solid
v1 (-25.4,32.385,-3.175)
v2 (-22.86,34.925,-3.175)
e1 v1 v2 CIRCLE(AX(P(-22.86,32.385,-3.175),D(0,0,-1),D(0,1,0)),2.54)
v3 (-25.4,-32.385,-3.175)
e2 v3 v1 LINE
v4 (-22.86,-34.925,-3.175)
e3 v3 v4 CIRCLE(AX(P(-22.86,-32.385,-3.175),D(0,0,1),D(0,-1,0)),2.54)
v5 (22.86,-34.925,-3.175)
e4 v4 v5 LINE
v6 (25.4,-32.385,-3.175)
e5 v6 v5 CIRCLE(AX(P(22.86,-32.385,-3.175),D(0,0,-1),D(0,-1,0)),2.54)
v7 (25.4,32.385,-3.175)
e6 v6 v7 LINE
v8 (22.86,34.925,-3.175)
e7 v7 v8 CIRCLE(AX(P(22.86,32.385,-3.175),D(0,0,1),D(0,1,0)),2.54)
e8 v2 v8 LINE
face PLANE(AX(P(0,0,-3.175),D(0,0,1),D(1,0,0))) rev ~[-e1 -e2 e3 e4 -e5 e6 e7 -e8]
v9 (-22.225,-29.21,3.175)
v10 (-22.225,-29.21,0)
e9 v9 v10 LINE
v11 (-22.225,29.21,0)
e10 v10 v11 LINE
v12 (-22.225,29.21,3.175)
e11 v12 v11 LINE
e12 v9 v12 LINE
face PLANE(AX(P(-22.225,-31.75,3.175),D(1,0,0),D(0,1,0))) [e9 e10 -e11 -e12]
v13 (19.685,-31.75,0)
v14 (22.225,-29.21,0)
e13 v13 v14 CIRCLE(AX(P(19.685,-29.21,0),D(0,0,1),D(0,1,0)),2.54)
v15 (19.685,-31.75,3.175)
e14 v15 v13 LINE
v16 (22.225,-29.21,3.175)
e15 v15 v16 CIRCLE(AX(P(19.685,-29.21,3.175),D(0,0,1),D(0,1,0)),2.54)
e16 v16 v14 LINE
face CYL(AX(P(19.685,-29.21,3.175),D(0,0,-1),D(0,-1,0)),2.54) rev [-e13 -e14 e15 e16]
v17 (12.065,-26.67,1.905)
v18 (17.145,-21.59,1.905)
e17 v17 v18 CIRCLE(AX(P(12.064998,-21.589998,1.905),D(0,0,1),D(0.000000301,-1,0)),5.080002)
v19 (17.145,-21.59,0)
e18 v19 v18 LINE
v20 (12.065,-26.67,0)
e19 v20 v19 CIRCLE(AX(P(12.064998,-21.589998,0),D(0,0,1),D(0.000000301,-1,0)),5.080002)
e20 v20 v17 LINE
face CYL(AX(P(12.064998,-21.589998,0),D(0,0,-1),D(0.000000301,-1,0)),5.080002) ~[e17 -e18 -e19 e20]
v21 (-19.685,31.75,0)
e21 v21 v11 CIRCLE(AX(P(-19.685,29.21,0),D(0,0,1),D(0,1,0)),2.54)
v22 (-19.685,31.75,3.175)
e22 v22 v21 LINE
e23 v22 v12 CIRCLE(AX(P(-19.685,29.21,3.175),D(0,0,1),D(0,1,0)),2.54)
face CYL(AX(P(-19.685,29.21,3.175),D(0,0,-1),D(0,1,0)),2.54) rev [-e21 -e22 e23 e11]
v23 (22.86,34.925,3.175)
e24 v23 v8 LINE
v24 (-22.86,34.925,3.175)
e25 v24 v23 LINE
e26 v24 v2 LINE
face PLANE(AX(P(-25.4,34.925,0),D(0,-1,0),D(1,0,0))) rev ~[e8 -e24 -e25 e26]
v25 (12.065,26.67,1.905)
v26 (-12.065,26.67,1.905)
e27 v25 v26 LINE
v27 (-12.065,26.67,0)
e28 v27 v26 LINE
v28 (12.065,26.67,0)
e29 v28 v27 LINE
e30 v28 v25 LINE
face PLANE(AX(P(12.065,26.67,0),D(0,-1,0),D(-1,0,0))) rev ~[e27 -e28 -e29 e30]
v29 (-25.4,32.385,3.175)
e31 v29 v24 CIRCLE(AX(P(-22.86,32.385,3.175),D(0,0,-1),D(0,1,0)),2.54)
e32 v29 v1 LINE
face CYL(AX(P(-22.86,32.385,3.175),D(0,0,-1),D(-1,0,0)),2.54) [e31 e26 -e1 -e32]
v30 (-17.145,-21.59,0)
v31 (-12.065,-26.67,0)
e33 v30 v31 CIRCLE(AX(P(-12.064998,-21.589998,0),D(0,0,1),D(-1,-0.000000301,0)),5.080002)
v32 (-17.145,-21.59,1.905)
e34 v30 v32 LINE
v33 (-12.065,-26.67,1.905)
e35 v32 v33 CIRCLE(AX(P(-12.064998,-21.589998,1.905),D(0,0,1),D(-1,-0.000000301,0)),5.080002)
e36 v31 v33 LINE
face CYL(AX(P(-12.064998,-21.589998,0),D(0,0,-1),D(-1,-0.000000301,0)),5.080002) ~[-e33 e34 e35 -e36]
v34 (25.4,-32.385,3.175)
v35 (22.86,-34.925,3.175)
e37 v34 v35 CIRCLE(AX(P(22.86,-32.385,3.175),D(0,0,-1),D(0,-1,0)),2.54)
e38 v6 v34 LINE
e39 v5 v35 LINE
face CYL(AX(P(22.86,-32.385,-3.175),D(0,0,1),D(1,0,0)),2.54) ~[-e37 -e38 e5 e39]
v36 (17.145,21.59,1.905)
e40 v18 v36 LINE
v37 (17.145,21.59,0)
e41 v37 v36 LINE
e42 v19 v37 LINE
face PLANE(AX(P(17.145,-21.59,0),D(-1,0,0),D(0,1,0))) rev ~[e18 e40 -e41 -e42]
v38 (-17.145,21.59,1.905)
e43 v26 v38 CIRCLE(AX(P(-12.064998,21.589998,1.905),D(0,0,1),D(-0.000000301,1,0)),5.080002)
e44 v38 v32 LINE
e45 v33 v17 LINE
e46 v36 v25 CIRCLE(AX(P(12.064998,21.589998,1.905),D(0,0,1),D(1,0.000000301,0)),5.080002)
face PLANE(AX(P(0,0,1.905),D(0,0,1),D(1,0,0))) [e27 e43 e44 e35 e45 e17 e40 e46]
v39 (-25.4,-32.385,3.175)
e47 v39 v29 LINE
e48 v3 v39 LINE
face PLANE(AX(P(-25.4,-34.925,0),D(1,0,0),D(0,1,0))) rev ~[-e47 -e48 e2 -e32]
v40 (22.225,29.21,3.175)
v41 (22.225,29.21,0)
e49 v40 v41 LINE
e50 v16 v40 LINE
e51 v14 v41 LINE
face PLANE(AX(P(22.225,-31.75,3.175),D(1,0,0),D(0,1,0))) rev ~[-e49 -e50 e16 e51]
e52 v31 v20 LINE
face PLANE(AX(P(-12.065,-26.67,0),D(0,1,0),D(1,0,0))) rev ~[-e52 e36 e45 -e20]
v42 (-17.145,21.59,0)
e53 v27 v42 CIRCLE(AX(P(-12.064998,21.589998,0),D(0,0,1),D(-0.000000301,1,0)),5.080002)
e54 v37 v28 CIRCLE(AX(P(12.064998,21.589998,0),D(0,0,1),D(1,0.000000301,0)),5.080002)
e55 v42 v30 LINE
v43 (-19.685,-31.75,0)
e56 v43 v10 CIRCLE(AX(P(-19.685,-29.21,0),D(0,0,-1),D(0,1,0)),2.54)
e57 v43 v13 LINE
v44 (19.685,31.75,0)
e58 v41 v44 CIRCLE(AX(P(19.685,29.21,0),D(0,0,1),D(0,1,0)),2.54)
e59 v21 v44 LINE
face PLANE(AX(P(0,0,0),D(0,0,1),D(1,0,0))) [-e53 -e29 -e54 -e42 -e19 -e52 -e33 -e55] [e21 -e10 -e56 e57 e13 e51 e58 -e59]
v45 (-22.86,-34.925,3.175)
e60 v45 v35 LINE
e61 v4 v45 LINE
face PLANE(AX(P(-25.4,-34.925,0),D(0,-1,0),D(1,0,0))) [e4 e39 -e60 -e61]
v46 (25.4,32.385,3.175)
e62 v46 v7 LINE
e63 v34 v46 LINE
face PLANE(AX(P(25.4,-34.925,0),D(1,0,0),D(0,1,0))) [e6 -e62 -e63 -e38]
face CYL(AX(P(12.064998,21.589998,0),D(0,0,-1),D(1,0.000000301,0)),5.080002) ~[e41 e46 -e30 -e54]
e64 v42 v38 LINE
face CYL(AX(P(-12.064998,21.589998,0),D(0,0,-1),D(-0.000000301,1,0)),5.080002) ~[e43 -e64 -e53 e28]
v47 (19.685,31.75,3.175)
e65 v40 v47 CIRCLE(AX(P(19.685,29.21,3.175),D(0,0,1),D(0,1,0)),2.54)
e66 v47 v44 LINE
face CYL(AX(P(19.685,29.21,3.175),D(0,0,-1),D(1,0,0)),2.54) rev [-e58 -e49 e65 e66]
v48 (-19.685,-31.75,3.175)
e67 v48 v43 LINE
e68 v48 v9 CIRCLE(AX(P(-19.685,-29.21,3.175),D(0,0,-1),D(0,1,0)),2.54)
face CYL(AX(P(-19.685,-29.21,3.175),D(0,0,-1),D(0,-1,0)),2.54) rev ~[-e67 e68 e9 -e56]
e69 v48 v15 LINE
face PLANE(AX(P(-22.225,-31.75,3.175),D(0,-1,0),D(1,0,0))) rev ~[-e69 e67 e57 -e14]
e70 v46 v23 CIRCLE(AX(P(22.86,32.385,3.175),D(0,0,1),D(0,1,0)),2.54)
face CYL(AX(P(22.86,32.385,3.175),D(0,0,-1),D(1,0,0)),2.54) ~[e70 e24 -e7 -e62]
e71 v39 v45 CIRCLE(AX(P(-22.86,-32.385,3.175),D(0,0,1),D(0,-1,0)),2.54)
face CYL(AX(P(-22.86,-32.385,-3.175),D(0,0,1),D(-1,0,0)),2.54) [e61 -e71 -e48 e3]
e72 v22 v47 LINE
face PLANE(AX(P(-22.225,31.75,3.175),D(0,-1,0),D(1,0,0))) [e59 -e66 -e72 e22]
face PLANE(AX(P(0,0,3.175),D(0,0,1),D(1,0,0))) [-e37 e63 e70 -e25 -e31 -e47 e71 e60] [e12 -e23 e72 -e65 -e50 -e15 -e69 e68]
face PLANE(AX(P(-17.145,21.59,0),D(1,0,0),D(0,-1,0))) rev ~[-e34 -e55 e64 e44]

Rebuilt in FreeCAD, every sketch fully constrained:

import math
import FreeCAD as App
import Part
import Sketcher

V = App.Vector
Q = App.Units.Quantity


def edges_at(feature, points):
    """Names of the edges that pass closest to the given points."""
    edges = feature.Shape.Edges
    near = lambda p: min(range(len(edges)), key=lambda i: edges[i].distToShape(Part.Vertex(*p))[0])
    return sorted({f"Edge{near(p) + 1}" for p in points})


def add_polygon(sketch, points):
    """Adds a closed chain of lines whose ends are joined by coincident constraints."""
    first, n = sketch.GeometryCount, len(points)
    for a, b in zip(points, points[1:] + points[:1]):
        sketch.addGeometry(Part.LineSegment(App.Vector(*a, 0), App.Vector(*b, 0)), False)
    for i in range(n):
        sketch.addConstraint(Sketcher.Constraint("Coincident", first + i, 2, first + (i + 1) % n, 1))

doc = App.newDocument("Part")
body = doc.addObject("PartDesign::Body", "Body")

# Sketch on XY plane
sketch1 = body.newObject("Sketcher::SketchObject", "Sketch")
sketch1.AttachmentSupport = (doc.getObject("XY_Plane"), [""])
sketch1.MapMode = "FlatFace"
add_polygon(sketch1, [(-25, 35), (-25, -35), (25, -35), (25, 35)])  # lines 0-3
sketch1.addConstraint([
    Sketcher.Constraint("Vertical", 0),
    Sketcher.Constraint("Horizontal", 1),
    Sketcher.Constraint("Vertical", 2),
    Sketcher.Constraint("Horizontal", 3),
    Sketcher.Constraint("Symmetric", 0, 2, 2, 2, -1, 1),
    Sketcher.Constraint("DistanceX", 1, 1, 1, 2, Q("2 in")),
    Sketcher.Constraint("DistanceY", 0, 2, 0, 1, Q("2.75 in")),
])
pad1 = body.newObject("PartDesign::Pad", "Pad")
pad1.Profile = sketch1
pad1.Length = Q("0.25 in")
pad1.Midplane = True
doc.recompute()

fillet = body.newObject("PartDesign::Fillet", "Fillet")
fillet.Base = (pad1, edges_at(pad1, [
    (25.4, -34.925, 0),
    (-25.4, -34.925, 0),
    (25.4, 34.925, 0),
    (-25.4, 34.925, 0),
]))
fillet.Radius = Q("0.1 in")

# Sketch on XY plane
sketch2 = body.newObject("Sketcher::SketchObject", "Sketch001")
sketch2.AttachmentSupport = (doc.getObject("XY_Plane"), [""])
sketch2.MapMode = "FlatFace"
sketch2.AttachmentOffset = App.Placement(V(0, 0, 0.125 * 25.4), App.Rotation())
add_polygon(sketch2, [(-22, 32), (-22, -32), (22, -32), (22, 32)])  # lines 0-3
sketch2.addConstraint([
    Sketcher.Constraint("Vertical", 0),
    Sketcher.Constraint("Horizontal", 1),
    Sketcher.Constraint("Vertical", 2),
    Sketcher.Constraint("Horizontal", 3),
    Sketcher.Constraint("Symmetric", 0, 2, 2, 2, -1, 1),
    Sketcher.Constraint("DistanceY", 0, 2, 0, 1, Q("2.5 in")),
    Sketcher.Constraint("DistanceX", 1, 1, 1, 2, Q("1.75 in")),
])
pocket1 = body.newObject("PartDesign::Pocket", "Pocket")
pocket1.Profile = sketch2
pocket1.Length = Q("0.125 in")
doc.recompute()

fillet2 = body.newObject("PartDesign::Fillet", "Fillet001")
fillet2.Base = (pocket1, edges_at(pocket1, [
    (-22.225, 31.75, 1.587),
    (22.225, 31.75, 1.587),
    (-22.225, -31.75, 1.587),
    (22.225, -31.75, 1.587),
]))
fillet2.Radius = Q("0.1 in")

# Sketch on XY plane
sketch3 = body.newObject("Sketcher::SketchObject", "Sketch002")
sketch3.AttachmentSupport = (doc.getObject("XY_Plane"), [""])
sketch3.MapMode = "FlatFace"
sketch3.addGeometry([
    Part.ArcOfCircle(Part.Circle(V(-12, -22, 0), V(0, 0, 1), 5), math.radians(-180), math.radians(-90)),  # 0
    Part.LineSegment(V(-12, -27, 0), V(12, -27, 0)),  # 1
    Part.ArcOfCircle(Part.Circle(V(12, -22, 0), V(0, 0, 1), 5), math.radians(-90), math.radians(0)),  # 2
    Part.LineSegment(V(17, -22, 0), V(17, 22, 0)),  # 3
    Part.ArcOfCircle(Part.Circle(V(12, 22, 0), V(0, 0, 1), 5), math.radians(0), math.radians(90)),  # 4
    Part.LineSegment(V(12, 27, 0), V(-12, 27, 0)),  # 5
    Part.ArcOfCircle(Part.Circle(V(-12, 22, 0), V(0, 0, 1), 5), math.radians(90), math.radians(180)),  # 6
    Part.LineSegment(V(-17, 22, 0), V(-17, -22, 0)),  # 7
], False)
sketch3.addConstraint([
    Sketcher.Constraint("Tangent", 0, 2, 1, 1),
    Sketcher.Constraint("Tangent", 1, 2, 2, 1),
    Sketcher.Constraint("Tangent", 2, 2, 3, 1),
    Sketcher.Constraint("Tangent", 3, 2, 4, 1),
    Sketcher.Constraint("Tangent", 4, 2, 5, 1),
    Sketcher.Constraint("Tangent", 5, 2, 6, 1),
    Sketcher.Constraint("Tangent", 6, 2, 7, 1),
    Sketcher.Constraint("Tangent", 7, 2, 0, 1),
    Sketcher.Constraint("Horizontal", 1),
    Sketcher.Constraint("Vertical", 3),
    Sketcher.Constraint("Horizontal", 5),
    Sketcher.Constraint("Vertical", 7),
    Sketcher.Constraint("Equal", 0, 2),
    Sketcher.Constraint("Equal", 2, 4),
    Sketcher.Constraint("Equal", 4, 6),
    Sketcher.Constraint("Symmetric", 0, 3, 4, 3, -1, 1),
    Sketcher.Constraint("Radius", 0, Q("0.2000001 in")),
    Sketcher.Constraint("DistanceY", 3, 1, 3, 2, Q("1.7 in")),
    Sketcher.Constraint("DistanceX", 1, 1, 1, 2, Q("0.95 in")),
])
pad2 = body.newObject("PartDesign::Pad", "Pad001")
pad2.Profile = sketch3
pad2.Length = Q("0.075 in")

doc.recompute()
